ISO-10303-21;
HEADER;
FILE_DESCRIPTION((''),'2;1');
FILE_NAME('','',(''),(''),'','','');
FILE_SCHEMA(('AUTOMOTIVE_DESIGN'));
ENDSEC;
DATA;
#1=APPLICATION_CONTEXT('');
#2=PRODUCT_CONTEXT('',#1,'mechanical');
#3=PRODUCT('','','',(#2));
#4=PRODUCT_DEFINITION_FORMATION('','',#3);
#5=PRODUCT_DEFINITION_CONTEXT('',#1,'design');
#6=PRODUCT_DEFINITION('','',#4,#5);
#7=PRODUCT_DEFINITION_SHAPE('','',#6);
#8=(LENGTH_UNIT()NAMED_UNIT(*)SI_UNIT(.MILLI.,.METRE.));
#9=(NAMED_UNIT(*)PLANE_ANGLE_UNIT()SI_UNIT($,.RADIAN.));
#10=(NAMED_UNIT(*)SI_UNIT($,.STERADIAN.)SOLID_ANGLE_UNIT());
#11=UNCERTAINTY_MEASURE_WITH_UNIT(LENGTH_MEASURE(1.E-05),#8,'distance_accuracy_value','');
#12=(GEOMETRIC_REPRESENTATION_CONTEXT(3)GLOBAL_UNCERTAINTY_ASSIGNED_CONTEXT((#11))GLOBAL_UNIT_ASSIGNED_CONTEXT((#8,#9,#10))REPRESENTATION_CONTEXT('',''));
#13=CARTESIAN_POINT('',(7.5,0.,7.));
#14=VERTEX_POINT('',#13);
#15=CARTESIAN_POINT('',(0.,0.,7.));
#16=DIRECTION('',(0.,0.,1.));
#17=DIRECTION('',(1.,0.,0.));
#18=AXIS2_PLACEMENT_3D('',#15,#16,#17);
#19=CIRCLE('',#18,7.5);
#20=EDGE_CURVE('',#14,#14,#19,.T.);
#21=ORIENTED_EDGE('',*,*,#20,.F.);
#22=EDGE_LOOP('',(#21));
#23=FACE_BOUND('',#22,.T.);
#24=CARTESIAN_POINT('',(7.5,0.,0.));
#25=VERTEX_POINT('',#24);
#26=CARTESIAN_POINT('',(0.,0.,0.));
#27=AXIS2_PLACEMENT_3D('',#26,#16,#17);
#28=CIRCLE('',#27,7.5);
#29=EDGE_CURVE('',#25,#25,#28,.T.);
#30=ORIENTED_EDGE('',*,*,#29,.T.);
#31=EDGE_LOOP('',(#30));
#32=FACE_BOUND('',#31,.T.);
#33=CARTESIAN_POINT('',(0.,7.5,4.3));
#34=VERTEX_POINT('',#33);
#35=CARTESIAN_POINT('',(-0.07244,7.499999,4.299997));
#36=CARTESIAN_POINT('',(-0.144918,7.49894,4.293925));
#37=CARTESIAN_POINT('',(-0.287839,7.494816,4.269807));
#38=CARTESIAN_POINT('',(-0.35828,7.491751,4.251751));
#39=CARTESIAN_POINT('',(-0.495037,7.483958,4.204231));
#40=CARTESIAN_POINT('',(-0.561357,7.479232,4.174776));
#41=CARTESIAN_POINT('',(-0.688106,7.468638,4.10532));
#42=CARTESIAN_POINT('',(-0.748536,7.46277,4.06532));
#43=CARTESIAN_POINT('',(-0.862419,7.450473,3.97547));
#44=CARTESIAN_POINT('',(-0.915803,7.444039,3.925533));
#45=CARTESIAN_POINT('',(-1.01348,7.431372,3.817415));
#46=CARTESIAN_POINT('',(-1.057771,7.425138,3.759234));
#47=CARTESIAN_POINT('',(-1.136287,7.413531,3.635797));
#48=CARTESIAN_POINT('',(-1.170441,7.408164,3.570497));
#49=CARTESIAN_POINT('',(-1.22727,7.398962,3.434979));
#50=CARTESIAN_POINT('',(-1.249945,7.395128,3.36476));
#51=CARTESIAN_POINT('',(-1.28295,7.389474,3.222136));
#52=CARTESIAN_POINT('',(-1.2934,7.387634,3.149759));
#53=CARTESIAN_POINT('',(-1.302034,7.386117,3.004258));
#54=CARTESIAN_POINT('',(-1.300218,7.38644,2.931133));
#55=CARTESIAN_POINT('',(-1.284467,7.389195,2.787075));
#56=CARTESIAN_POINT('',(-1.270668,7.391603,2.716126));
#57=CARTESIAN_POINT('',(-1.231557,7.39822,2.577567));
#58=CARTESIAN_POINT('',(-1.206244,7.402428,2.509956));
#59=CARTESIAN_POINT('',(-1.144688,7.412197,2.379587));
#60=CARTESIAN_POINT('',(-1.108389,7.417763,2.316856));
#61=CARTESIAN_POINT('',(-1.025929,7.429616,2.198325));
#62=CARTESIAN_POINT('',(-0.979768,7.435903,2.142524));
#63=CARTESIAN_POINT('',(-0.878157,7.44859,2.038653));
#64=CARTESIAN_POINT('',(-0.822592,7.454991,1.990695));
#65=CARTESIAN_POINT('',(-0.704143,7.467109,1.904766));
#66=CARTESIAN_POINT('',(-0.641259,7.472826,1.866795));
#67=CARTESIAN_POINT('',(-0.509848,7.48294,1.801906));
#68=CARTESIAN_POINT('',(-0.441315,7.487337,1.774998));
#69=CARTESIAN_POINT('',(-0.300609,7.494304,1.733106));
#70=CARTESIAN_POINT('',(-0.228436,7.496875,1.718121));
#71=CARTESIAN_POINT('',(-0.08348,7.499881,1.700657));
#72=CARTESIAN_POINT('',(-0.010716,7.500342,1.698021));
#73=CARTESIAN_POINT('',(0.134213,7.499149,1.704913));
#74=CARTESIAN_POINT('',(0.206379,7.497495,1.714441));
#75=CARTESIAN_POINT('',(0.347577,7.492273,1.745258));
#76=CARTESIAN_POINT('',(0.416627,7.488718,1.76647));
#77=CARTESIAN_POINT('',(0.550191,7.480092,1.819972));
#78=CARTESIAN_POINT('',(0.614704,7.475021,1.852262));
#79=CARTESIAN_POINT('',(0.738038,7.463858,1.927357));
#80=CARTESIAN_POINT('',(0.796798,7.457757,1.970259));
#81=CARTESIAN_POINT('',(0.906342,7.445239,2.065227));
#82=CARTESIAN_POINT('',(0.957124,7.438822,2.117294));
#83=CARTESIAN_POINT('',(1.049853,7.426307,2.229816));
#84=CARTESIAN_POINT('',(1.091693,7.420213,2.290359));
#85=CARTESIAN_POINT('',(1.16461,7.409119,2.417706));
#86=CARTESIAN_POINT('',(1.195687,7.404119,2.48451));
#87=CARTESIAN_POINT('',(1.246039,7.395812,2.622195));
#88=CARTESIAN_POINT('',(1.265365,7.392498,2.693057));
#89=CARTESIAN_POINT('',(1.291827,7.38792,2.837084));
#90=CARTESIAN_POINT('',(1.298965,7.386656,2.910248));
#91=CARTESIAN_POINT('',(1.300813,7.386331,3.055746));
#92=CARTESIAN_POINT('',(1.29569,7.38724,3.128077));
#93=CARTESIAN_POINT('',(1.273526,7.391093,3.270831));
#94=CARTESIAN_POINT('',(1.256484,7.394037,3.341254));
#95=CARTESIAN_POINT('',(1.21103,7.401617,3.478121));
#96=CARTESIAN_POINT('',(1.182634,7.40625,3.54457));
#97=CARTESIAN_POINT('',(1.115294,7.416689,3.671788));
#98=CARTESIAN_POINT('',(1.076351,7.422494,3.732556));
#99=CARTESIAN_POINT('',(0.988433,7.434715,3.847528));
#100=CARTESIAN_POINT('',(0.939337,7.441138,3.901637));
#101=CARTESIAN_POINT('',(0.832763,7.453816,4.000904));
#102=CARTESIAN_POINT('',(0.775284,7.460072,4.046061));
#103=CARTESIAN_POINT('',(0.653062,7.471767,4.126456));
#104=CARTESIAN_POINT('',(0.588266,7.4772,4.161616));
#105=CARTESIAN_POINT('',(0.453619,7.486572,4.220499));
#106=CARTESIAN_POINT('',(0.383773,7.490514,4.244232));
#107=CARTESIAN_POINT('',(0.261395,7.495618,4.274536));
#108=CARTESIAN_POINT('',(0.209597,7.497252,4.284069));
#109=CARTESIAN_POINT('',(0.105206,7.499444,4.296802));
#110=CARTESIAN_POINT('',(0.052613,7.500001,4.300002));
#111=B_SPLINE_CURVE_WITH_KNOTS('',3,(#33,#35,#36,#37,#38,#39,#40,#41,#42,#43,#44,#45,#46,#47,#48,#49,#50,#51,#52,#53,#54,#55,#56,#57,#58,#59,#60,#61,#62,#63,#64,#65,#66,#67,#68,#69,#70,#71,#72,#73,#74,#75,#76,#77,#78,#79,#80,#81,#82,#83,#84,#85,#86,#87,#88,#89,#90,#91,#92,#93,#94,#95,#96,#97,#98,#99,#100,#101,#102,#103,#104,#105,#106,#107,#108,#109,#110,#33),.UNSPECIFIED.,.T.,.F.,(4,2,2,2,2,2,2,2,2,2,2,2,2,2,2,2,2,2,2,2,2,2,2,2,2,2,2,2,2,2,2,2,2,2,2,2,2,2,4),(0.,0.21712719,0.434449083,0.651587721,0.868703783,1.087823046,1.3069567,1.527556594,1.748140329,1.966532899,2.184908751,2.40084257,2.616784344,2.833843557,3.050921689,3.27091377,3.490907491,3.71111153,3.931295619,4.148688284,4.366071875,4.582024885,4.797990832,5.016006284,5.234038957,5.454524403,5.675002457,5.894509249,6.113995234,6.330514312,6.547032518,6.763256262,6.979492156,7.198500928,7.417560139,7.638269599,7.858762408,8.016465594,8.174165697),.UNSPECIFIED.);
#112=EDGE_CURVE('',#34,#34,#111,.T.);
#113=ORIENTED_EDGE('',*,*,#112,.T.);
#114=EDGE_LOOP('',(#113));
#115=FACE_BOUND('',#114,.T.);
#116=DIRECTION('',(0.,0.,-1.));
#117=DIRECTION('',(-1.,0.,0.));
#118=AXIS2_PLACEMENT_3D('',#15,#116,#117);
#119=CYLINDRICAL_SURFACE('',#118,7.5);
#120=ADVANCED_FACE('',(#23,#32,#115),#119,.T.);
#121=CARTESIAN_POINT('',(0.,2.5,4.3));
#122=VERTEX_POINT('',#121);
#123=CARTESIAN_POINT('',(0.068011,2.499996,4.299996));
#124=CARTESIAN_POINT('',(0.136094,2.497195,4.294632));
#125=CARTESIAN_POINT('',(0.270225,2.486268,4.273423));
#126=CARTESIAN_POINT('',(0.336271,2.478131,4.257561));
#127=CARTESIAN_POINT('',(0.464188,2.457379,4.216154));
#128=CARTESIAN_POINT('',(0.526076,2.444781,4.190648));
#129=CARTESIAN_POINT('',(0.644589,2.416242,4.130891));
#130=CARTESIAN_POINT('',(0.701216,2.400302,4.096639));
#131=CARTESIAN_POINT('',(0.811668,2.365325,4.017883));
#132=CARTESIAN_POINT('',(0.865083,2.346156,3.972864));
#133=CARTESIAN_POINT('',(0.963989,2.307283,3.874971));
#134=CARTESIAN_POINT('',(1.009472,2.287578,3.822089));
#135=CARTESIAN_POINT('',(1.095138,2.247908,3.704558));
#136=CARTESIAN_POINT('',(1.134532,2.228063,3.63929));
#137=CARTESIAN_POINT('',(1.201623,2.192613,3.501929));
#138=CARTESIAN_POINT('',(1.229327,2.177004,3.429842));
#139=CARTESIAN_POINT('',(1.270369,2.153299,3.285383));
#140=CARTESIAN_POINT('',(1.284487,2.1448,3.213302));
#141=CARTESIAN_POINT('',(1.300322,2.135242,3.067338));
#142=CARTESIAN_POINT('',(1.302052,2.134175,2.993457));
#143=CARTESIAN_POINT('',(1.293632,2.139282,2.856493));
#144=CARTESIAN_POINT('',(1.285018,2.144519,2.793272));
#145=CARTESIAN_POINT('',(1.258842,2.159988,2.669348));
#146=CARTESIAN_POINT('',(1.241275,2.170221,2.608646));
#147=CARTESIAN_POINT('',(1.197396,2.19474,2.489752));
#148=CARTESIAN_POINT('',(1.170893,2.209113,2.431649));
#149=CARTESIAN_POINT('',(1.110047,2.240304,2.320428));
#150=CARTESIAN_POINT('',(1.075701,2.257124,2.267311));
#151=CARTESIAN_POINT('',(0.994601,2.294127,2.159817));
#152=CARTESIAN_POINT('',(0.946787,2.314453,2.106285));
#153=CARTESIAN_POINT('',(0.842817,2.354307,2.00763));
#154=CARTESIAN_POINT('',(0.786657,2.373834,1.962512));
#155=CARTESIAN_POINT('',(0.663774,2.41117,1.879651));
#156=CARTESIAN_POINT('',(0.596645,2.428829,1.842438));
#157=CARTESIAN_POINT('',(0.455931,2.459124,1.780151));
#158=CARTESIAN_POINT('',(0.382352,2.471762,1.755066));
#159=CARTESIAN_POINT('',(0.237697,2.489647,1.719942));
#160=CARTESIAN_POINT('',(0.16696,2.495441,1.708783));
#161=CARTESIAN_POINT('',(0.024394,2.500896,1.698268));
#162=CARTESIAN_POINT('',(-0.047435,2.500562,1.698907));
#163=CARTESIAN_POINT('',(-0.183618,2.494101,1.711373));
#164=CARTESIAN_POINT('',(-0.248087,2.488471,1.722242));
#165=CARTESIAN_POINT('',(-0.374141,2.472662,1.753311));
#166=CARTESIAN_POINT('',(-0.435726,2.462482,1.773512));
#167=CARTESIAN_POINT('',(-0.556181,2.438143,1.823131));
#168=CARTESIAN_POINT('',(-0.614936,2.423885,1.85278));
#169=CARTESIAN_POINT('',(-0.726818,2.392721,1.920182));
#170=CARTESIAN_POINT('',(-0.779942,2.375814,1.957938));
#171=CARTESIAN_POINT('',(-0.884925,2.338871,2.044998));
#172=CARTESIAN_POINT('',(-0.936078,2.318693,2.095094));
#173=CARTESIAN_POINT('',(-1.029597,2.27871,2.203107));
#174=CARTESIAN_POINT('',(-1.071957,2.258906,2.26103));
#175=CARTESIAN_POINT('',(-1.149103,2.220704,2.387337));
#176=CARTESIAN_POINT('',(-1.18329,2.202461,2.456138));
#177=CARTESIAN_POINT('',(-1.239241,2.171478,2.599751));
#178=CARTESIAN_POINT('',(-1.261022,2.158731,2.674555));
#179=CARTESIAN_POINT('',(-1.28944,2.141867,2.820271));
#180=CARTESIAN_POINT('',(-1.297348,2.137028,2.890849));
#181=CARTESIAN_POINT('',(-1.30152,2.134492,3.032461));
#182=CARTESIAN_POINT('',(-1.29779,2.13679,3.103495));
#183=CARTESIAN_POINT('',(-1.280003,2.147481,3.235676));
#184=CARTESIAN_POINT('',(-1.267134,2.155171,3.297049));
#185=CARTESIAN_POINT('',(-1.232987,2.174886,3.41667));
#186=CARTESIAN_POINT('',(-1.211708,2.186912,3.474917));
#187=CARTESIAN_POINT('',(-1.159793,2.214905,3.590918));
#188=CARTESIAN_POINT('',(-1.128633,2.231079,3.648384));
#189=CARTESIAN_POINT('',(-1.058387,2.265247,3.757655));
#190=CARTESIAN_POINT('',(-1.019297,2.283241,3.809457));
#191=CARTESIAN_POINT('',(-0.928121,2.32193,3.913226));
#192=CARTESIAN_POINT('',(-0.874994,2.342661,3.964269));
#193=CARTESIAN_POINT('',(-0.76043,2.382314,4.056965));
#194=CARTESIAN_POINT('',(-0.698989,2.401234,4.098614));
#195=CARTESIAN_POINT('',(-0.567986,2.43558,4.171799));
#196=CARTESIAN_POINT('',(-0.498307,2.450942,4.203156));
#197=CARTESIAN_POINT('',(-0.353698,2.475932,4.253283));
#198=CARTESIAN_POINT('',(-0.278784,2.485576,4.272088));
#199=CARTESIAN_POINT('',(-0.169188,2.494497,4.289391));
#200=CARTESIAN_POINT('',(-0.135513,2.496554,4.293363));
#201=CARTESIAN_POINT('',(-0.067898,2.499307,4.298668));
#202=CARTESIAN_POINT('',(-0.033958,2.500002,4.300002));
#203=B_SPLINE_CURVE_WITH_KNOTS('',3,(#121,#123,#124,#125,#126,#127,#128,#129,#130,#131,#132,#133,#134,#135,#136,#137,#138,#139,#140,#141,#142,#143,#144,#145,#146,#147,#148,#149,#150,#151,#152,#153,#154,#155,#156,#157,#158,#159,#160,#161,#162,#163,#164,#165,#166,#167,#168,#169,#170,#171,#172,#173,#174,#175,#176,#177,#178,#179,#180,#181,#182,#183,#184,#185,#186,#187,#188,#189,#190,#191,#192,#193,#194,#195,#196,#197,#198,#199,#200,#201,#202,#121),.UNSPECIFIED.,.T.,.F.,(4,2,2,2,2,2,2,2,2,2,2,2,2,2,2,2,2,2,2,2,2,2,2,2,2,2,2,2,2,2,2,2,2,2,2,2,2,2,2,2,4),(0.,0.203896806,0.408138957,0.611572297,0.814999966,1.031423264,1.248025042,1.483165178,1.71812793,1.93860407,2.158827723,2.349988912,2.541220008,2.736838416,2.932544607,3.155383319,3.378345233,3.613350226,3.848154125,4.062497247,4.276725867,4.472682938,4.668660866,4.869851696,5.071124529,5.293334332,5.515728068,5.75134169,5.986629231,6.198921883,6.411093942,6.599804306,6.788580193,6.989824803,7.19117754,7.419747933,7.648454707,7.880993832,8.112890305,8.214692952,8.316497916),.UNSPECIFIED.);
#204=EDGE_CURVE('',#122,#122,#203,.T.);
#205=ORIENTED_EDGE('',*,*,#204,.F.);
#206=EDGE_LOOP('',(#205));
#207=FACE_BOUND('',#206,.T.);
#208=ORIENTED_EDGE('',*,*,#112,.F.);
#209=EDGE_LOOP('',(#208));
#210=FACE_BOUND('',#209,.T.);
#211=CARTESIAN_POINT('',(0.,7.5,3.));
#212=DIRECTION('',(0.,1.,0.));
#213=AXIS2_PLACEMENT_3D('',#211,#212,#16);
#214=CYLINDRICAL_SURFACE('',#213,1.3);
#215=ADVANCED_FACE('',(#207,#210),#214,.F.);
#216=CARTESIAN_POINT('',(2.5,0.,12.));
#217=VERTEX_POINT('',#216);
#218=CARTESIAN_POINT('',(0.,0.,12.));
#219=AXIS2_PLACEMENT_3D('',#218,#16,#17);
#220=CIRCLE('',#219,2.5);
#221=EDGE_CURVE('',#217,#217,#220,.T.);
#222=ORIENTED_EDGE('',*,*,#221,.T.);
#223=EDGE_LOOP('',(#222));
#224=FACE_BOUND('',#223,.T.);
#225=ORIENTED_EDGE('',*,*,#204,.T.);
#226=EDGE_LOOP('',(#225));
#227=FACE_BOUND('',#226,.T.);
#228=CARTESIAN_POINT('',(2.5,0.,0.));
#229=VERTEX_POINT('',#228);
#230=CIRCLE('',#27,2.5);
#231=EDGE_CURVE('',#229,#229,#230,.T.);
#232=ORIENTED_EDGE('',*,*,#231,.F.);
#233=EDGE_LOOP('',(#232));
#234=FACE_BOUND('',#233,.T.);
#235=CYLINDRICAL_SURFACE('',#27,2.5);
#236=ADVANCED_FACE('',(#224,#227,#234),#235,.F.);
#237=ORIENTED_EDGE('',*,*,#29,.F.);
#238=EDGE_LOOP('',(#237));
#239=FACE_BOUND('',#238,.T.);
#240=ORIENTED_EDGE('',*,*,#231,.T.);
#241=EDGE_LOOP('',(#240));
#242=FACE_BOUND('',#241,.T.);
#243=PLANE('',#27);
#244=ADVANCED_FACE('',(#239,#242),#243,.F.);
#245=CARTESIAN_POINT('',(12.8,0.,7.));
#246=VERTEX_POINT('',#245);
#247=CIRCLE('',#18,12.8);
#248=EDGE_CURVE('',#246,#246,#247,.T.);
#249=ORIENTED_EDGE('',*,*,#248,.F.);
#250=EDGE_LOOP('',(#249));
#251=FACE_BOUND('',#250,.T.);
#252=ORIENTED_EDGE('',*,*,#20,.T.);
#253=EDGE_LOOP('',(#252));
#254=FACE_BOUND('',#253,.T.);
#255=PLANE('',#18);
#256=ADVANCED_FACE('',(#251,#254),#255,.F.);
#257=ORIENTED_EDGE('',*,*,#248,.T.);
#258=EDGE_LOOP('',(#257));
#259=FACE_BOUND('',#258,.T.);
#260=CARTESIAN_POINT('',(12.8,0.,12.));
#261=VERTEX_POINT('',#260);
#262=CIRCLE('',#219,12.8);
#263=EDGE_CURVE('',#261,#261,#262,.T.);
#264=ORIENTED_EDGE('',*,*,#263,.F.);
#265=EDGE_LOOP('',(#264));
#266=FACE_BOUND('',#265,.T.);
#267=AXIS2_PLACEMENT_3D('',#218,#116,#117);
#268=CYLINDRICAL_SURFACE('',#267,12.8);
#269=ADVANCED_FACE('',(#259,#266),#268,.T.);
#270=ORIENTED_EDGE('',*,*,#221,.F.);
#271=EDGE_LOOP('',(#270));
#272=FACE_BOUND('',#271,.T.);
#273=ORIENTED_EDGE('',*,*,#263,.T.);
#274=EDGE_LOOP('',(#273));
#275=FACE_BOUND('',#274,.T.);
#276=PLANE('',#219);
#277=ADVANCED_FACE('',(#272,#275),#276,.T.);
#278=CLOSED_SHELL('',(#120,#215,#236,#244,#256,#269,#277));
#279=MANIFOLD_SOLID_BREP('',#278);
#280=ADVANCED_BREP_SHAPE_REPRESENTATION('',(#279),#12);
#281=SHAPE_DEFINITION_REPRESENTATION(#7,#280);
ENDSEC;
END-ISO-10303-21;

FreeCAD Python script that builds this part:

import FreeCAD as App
import Part
import Sketcher
Q = App.Units.Quantity

doc = App.newDocument("Part")
body = doc.addObject("PartDesign::Body", "Body")

# Sketch on XY plane
sketch1 = doc.addObject("Sketcher::SketchObject", "Sketch")
body.addObject(sketch1)
sketch1.AttachmentSupport = (doc.XY_Plane, [""])
sketch1.MapMode = "FlatFace"
sketch1.addGeometry(Part.Circle(App.Vector(0, 0, 0), App.Vector(0, 0, 1), 8), False)
sketch1.addConstraint([
    Sketcher.Constraint("Coincident", 0, 3, -1, 1),
    Sketcher.Constraint("Diameter", 0, Q("15 mm")),
])
pad1 = doc.addObject("PartDesign::Pad", "Pad")
body.addObject(pad1)
pad1.Profile = sketch1
pad1.Length = 7

# Sketch on XY plane
sketch2 = doc.addObject("Sketcher::SketchObject", "Sketch001")
body.addObject(sketch2)
sketch2.AttachmentSupport = (doc.XY_Plane, [""])
sketch2.MapMode = "FlatFace"
sketch2.AttachmentOffset = App.Placement(App.Vector(0, 0, 7), App.Rotation())
sketch2.addGeometry(Part.Circle(App.Vector(0, 0, 0), App.Vector(0, 0, 1), 13), False)
sketch2.addConstraint([
    Sketcher.Constraint("Coincident", 0, 3, -1, 1),
    Sketcher.Constraint("Diameter", 0, Q("25.6 mm")),
])
pad2 = doc.addObject("PartDesign::Pad", "Pad001")
body.addObject(pad2)
pad2.Profile = sketch2
pad2.Length = 5

# Sketch on XY plane
sketch3 = doc.addObject("Sketcher::SketchObject", "Sketch002")
body.addObject(sketch3)
sketch3.AttachmentSupport = (doc.XY_Plane, [""])
sketch3.MapMode = "FlatFace"
sketch3.AttachmentOffset = App.Placement(App.Vector(0, 0, 12), App.Rotation())
sketch3.addGeometry(Part.Circle(App.Vector(0, 0, 0), App.Vector(0, 0, 1), 2.5), False)
sketch3.addConstraint([
    Sketcher.Constraint("Coincident", 0, 3, -1, 1),
    Sketcher.Constraint("Diameter", 0, Q("5 mm")),
])
pocket1 = doc.addObject("PartDesign::Pocket", "Pocket")
body.addObject(pocket1)
pocket1.Profile = sketch3
pocket1.Type = "ThroughAll"

# Sketch on XZ plane
sketch4 = doc.addObject("Sketcher::SketchObject", "Sketch003")
body.addObject(sketch4)
sketch4.AttachmentSupport = (doc.XZ_Plane, [""])
sketch4.MapMode = "FlatFace"
sketch4.AttachmentOffset = App.Placement(App.Vector(0, 0, -7.5), App.Rotation())
sketch4.addGeometry(Part.Circle(App.Vector(0, 3, 0), App.Vector(0, 0, 1), 1.3), False)
sketch4.addConstraint([
    Sketcher.Constraint("PointOnObject", 0, 3, -2),
    Sketcher.Constraint("Diameter", 0, Q("2.6 mm")),
    Sketcher.Constraint("DistanceY", -1, 1, 0, 3, Q("3 mm")),
])
pocket2 = doc.addObject("PartDesign::Pocket", "Pocket001")
body.addObject(pocket2)
pocket2.Profile = sketch4
pocket2.Type = "UpToFirst"
pocket2.Reversed = True

doc.recompute()
